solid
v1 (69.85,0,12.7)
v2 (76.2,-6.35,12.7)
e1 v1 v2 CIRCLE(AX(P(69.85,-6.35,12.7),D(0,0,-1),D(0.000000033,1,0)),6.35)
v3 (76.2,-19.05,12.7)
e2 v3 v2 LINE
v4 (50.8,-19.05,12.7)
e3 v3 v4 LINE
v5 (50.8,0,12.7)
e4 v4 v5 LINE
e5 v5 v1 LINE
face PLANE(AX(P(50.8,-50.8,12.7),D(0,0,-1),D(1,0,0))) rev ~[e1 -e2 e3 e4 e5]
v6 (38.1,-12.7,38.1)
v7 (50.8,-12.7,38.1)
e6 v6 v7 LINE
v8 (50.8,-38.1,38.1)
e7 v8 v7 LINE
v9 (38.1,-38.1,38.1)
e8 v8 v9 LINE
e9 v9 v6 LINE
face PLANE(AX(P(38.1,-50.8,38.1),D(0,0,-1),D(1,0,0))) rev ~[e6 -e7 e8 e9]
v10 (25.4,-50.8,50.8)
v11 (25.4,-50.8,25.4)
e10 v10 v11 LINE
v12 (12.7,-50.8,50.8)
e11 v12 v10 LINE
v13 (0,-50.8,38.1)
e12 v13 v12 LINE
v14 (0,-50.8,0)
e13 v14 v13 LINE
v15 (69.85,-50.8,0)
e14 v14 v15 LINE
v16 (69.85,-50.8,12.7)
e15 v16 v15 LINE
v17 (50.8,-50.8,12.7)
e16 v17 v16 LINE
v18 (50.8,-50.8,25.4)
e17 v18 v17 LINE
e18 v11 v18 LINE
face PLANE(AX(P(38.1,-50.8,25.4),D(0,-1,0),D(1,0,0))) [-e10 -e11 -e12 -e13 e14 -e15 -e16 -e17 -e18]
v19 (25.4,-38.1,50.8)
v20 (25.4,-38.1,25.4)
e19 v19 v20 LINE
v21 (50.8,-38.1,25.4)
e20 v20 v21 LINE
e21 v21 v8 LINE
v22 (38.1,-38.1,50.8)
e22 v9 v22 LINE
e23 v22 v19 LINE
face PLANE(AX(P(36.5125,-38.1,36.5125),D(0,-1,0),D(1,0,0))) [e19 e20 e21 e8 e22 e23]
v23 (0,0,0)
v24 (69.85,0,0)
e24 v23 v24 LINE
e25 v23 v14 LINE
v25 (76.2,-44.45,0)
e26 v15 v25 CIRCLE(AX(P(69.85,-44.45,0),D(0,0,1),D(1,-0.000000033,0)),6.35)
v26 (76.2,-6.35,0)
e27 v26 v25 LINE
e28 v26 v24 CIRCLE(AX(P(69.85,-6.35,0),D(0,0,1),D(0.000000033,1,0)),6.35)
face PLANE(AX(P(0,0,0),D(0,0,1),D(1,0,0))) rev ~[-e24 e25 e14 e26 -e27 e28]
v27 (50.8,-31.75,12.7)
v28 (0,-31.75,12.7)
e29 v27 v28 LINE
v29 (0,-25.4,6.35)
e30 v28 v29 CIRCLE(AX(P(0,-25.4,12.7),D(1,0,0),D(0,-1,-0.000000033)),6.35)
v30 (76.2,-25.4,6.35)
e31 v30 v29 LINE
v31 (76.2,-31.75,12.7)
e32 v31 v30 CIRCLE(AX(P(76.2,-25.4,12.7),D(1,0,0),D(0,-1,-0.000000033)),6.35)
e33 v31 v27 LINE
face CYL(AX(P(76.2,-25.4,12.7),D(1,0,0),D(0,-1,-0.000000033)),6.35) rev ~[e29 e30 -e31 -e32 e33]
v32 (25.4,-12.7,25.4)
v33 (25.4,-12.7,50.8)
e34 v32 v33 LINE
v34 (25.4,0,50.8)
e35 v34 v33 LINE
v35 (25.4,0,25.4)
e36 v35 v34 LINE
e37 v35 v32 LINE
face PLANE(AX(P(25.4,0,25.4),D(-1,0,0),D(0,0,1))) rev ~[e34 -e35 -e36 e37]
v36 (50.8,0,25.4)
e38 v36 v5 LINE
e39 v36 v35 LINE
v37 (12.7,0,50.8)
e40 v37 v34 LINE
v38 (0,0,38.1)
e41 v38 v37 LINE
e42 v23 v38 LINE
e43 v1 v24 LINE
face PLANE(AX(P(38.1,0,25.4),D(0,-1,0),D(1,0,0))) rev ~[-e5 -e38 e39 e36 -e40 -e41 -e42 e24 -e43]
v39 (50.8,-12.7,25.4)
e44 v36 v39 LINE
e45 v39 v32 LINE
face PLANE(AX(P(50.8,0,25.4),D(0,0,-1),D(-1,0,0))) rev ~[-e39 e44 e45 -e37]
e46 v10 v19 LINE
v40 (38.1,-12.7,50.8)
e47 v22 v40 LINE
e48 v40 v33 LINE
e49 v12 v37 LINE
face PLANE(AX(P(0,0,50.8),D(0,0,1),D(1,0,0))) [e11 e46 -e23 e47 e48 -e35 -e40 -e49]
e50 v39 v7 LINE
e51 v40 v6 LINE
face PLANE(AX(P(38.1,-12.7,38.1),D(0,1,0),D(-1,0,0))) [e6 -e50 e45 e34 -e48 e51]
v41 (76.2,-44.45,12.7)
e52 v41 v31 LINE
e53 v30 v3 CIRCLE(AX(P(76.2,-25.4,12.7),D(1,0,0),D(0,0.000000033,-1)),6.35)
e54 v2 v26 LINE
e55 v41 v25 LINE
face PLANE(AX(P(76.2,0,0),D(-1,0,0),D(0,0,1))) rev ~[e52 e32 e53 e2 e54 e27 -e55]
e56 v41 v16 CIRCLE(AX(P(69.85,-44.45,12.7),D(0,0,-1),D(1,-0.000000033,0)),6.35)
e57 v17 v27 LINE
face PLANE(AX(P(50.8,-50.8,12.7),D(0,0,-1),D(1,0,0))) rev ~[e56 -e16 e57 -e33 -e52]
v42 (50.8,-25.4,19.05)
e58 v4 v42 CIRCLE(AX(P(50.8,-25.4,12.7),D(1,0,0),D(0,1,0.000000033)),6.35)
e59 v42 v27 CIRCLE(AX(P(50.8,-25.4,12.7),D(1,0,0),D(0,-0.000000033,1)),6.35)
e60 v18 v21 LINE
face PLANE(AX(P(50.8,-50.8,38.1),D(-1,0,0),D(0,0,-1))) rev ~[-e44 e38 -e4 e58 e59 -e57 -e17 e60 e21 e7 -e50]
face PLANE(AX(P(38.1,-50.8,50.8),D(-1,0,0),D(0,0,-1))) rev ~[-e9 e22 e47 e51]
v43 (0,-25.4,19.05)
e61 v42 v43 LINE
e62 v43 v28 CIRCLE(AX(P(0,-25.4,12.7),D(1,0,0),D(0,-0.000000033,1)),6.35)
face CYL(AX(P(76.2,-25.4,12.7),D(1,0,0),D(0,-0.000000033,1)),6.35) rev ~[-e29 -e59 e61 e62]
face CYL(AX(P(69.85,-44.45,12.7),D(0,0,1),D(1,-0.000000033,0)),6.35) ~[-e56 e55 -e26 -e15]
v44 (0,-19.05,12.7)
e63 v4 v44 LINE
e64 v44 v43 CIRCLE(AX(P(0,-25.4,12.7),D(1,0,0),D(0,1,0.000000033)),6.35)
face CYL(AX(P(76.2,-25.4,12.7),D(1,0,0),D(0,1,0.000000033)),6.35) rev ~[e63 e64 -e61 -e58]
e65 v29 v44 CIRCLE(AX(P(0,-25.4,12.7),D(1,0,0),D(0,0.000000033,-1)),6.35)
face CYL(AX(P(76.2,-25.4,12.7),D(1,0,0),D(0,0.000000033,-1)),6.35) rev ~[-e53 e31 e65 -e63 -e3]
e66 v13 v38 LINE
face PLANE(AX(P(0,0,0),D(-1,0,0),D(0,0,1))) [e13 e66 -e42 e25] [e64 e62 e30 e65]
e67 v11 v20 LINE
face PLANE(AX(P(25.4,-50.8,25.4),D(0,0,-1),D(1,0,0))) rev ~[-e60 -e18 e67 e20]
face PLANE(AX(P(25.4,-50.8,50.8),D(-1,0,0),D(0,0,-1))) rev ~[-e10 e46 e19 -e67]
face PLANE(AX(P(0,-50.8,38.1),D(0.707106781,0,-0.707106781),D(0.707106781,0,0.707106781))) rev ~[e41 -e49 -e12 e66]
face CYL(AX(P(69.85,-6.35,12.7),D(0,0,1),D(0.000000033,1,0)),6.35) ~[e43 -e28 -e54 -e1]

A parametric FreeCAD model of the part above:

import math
import FreeCAD as App
import Part
import Sketcher
Q = App.Units.Quantity


def add_polygon(sketch, points):
    """Adds a closed chain of lines whose ends are joined by coincident constraints."""
    first, n = sketch.GeometryCount, len(points)
    for a, b in zip(points, points[1:] + points[:1]):
        sketch.addGeometry(Part.LineSegment(App.Vector(*a, 0), App.Vector(*b, 0)), False)
    for i in range(n):
        sketch.addConstraint(Sketcher.Constraint("Coincident", first + i, 2, first + (i + 1) % n, 1))

doc = App.newDocument("Part")
body = doc.addObject("PartDesign::Body", "Body")

sketch1 = doc.addObject("Sketcher::SketchObject", "Sketch")
body.addObject(sketch1)
sketch1.AttachmentSupport = (doc.XZ_Plane, [""])
sketch1.MapMode = "FlatFace"
add_polygon(sketch1, [(0, 51), (0, 0), (76, 0), (76, 51)])
sketch1.addConstraint([
    Sketcher.Constraint("Vertical", 0),
    Sketcher.Constraint("Horizontal", 1),
    Sketcher.Constraint("Vertical", 2),
    Sketcher.Constraint("Horizontal", 3),
    Sketcher.Constraint("Coincident", 0, 2, -1, 1),
    Sketcher.Constraint("DistanceX", 1, 1, 1, 2, Q("3 in")),
    Sketcher.Constraint("DistanceY", 0, 2, 0, 1, Q("2 in")),
])
pad1 = doc.addObject("PartDesign::Pad", "Pad")
body.addObject(pad1)
pad1.Profile = sketch1
pad1.Length = Q("2 in")

sketch2 = doc.addObject("Sketcher::SketchObject", "Sketch001")
body.addObject(sketch2)
sketch2.AttachmentSupport = (doc.XZ_Plane, [""])
sketch2.MapMode = "FlatFace"
sketch2.AttachmentOffset = App.Placement(App.Vector(0, 0, 2 * 25.4), App.Rotation())
add_polygon(sketch2, [(13, 51), (0, 51), (0, 38)])
add_polygon(sketch2, [(76, 13), (76, 51), (38, 51), (38, 38), (51, 38), (51, 13)])
sketch2.addConstraint([
    Sketcher.Constraint("Horizontal", 0),
    Sketcher.Constraint("Vertical", 1),
    Sketcher.Constraint("Vertical", 3),
    Sketcher.Constraint("Horizontal", 4),
    Sketcher.Constraint("Vertical", 5),
    Sketcher.Constraint("Horizontal", 6),
    Sketcher.Constraint("Vertical", 7),
    Sketcher.Constraint("Horizontal", 8),
    Sketcher.Constraint("PointOnObject", 0, 2, -2),
    Sketcher.Constraint("Horizontal", 2, 2, 3, 2),
    Sketcher.Constraint("Horizontal", 1, 2, 5, 2),
    Sketcher.Constraint("Equal", 0, 6),
    Sketcher.Constraint("Equal", 6, 1),
    Sketcher.Constraint("Equal", 4, 3),
    Sketcher.Constraint("DistanceX", 8, 1, 8, 2, Q("1 in")),
    Sketcher.Constraint("DistanceX", 0, 2, 0, 1, Q("0.5 in")),
    Sketcher.Constraint("DistanceY", -1, 1, 0, 2, Q("2 in")),
    Sketcher.Constraint("DistanceX", -1, 1, 3, 2, Q("3 in")),
])
pocket1 = doc.addObject("PartDesign::Pocket", "Pocket")
body.addObject(pocket1)
pocket1.Profile = sketch2
pocket1.Type = "ThroughAll"

sketch3 = doc.addObject("Sketcher::SketchObject", "Sketch002")
body.addObject(sketch3)
sketch3.AttachmentSupport = (doc.XZ_Plane, [""])
sketch3.MapMode = "FlatFace"
sketch3.AttachmentOffset = App.Placement(App.Vector(0, 0, 2 * 25.4), App.Rotation())
add_polygon(sketch3, [(25, 51), (25, 25), (51, 25), (51, 38), (38, 38), (38, 51)])
sketch3.addConstraint([
    Sketcher.Constraint("Vertical", 0),
    Sketcher.Constraint("Horizontal", 1),
    Sketcher.Constraint("Vertical", 2),
    Sketcher.Constraint("Horizontal", 3),
    Sketcher.Constraint("Vertical", 4),
    Sketcher.Constraint("Horizontal", 5),
    Sketcher.Constraint("Equal", 3, 5),
    Sketcher.Constraint("Equal", 1, 0),
    Sketcher.Constraint("Equal", 5, 2),
    Sketcher.Constraint("DistanceX", 1, 1, 1, 2, Q("1 in")),
    Sketcher.Constraint("DistanceX", -1, 1, 0, 2, Q("1 in")),
    Sketcher.Constraint("DistanceY", -1, 1, 0, 2, Q("1 in")),
])
pocket2 = doc.addObject("PartDesign::Pocket", "Pocket001")
body.addObject(pocket2)
pocket2.Profile = sketch3
pocket2.Length = Q("0.5 in")

sketch4 = doc.addObject("Sketcher::SketchObject", "Sketch003")
body.addObject(sketch4)
sketch4.AttachmentSupport = (doc.XZ_Plane, [""])
sketch4.MapMode = "FlatFace"
add_polygon(sketch4, [(51, 51), (51, 25), (25, 25), (25, 51)])
sketch4.addConstraint([
    Sketcher.Constraint("Vertical", 0),
    Sketcher.Constraint("Horizontal", 1),
    Sketcher.Constraint("Vertical", 2),
    Sketcher.Constraint("Horizontal", 3),
    Sketcher.Constraint("Equal", 3, 0),
    Sketcher.Constraint("DistanceX", 1, 2, 1, 1, Q("1 in")),
    Sketcher.Constraint("DistanceX", -1, 1, 0, 2, Q("2 in")),
    Sketcher.Constraint("DistanceY", -1, 1, 0, 2, Q("1 in")),
])
pocket3 = doc.addObject("PartDesign::Pocket", "Pocket002")
body.addObject(pocket3)
pocket3.Profile = sketch4
pocket3.Length = Q("0.5 in")
pocket3.Reversed = True

sketch5 = doc.addObject("Sketcher::SketchObject", "Sketch004")
body.addObject(sketch5)
sketch5.AttachmentSupport = (doc.XY_Plane, [""])
sketch5.MapMode = "FlatFace"
sketch5.AttachmentOffset = App.Placement(App.Vector(0, 0, 0.5 * 25.4), App.Rotation())
sketch5.addGeometry([
    Part.ArcOfCircle(Part.Circle(App.Vector(70, -44, 0), App.Vector(0, 0, 1), 6), math.radians(-90), math.radians(0)),
    Part.LineSegment(App.Vector(70, -51, 0), App.Vector(76, -51, 0)),
    Part.LineSegment(App.Vector(76, -51, 0), App.Vector(76, -44, 0)),
    Part.LineSegment(App.Vector(76, 0, 0), App.Vector(70, 0, 0)),
    Part.ArcOfCircle(Part.Circle(App.Vector(70, -6, 0), App.Vector(0, 0, 1), 6), math.radians(0), math.radians(90)),
    Part.LineSegment(App.Vector(76, -6, 0), App.Vector(76, 0, 0)),
], False)
sketch5.addConstraint([
    Sketcher.Constraint("Tangent", 0, 1, 1, 1),
    Sketcher.Constraint("Coincident", 1, 2, 2, 1),
    Sketcher.Constraint("Tangent", 2, 2, 0, 2),
    Sketcher.Constraint("Tangent", 3, 2, 4, 2),
    Sketcher.Constraint("Tangent", 4, 1, 5, 1),
    Sketcher.Constraint("Coincident", 5, 2, 3, 1),
    Sketcher.Constraint("Horizontal", 1),
    Sketcher.Constraint("Vertical", 2),
    Sketcher.Constraint("Horizontal", 3),
    Sketcher.Constraint("Vertical", 5),
    Sketcher.Constraint("Equal", 0, 4),
    Sketcher.Constraint("PointOnObject", 3, 2, -1),
    Sketcher.Constraint("Vertical", 0, 3, 4, 3),
    Sketcher.Constraint("Radius", 0, Q("0.25 in")),
    Sketcher.Constraint("DistanceY", 0, 1, -1, 1, Q("2 in")),
    Sketcher.Constraint("DistanceX", -1, 1, 1, 2, Q("3 in")),
])
pocket4 = doc.addObject("PartDesign::Pocket", "Pocket003")
body.addObject(pocket4)
pocket4.Profile = sketch5
pocket4.Type = "ThroughAll"

sketch6 = doc.addObject("Sketcher::SketchObject", "Sketch005")
body.addObject(sketch6)
sketch6.AttachmentSupport = (doc.YZ_Plane, [""])
sketch6.MapMode = "FlatFace"
sketch6.AttachmentOffset = App.Placement(App.Vector(0, 0, 3 * 25.4), App.Rotation())
sketch6.addGeometry([
    Part.ArcOfCircle(Part.Circle(App.Vector(-25, 13, 0), App.Vector(0, 0, 1), 6), math.radians(-90), math.radians(0)),
    Part.ArcOfCircle(Part.Circle(App.Vector(-25, 13, 0), App.Vector(0, 0, 1), 6), math.radians(0), math.radians(90)),
    Part.ArcOfCircle(Part.Circle(App.Vector(-25, 13, 0), App.Vector(0, 0, 1), 6), math.radians(90), math.radians(180)),
    Part.ArcOfCircle(Part.Circle(App.Vector(-25, 13, 0), App.Vector(0, 0, 1), 6), math.radians(-180), math.radians(-90)),
], False)
sketch6.addConstraint([
    Sketcher.Constraint("Tangent", 0, 2, 1, 1),
    Sketcher.Constraint("Tangent", 1, 2, 2, 1),
    Sketcher.Constraint("Tangent", 2, 2, 3, 1),
    Sketcher.Constraint("Tangent", 3, 2, 0, 1),
    Sketcher.Constraint("Equal", 0, 1),
    Sketcher.Constraint("Horizontal", 3, 3, 0, 2),
    Sketcher.Constraint("Horizontal", 0, 2, 2, 2),
    Sketcher.Constraint("Vertical", 3, 3, 1, 2),
    Sketcher.Constraint("Vertical", 1, 2, 3, 2),
    Sketcher.Constraint("Radius", 0, Q("0.25 in")),
    Sketcher.Constraint("DistanceX", 0, 3, -1, 1, Q("1 in")),
    Sketcher.Constraint("DistanceY", -1, 1, 0, 3, Q("0.5 in")),
])
pocket5 = doc.addObject("PartDesign::Pocket", "Pocket004")
body.addObject(pocket5)
pocket5.Profile = sketch6
pocket5.Type = "ThroughAll"

doc.recompute()
